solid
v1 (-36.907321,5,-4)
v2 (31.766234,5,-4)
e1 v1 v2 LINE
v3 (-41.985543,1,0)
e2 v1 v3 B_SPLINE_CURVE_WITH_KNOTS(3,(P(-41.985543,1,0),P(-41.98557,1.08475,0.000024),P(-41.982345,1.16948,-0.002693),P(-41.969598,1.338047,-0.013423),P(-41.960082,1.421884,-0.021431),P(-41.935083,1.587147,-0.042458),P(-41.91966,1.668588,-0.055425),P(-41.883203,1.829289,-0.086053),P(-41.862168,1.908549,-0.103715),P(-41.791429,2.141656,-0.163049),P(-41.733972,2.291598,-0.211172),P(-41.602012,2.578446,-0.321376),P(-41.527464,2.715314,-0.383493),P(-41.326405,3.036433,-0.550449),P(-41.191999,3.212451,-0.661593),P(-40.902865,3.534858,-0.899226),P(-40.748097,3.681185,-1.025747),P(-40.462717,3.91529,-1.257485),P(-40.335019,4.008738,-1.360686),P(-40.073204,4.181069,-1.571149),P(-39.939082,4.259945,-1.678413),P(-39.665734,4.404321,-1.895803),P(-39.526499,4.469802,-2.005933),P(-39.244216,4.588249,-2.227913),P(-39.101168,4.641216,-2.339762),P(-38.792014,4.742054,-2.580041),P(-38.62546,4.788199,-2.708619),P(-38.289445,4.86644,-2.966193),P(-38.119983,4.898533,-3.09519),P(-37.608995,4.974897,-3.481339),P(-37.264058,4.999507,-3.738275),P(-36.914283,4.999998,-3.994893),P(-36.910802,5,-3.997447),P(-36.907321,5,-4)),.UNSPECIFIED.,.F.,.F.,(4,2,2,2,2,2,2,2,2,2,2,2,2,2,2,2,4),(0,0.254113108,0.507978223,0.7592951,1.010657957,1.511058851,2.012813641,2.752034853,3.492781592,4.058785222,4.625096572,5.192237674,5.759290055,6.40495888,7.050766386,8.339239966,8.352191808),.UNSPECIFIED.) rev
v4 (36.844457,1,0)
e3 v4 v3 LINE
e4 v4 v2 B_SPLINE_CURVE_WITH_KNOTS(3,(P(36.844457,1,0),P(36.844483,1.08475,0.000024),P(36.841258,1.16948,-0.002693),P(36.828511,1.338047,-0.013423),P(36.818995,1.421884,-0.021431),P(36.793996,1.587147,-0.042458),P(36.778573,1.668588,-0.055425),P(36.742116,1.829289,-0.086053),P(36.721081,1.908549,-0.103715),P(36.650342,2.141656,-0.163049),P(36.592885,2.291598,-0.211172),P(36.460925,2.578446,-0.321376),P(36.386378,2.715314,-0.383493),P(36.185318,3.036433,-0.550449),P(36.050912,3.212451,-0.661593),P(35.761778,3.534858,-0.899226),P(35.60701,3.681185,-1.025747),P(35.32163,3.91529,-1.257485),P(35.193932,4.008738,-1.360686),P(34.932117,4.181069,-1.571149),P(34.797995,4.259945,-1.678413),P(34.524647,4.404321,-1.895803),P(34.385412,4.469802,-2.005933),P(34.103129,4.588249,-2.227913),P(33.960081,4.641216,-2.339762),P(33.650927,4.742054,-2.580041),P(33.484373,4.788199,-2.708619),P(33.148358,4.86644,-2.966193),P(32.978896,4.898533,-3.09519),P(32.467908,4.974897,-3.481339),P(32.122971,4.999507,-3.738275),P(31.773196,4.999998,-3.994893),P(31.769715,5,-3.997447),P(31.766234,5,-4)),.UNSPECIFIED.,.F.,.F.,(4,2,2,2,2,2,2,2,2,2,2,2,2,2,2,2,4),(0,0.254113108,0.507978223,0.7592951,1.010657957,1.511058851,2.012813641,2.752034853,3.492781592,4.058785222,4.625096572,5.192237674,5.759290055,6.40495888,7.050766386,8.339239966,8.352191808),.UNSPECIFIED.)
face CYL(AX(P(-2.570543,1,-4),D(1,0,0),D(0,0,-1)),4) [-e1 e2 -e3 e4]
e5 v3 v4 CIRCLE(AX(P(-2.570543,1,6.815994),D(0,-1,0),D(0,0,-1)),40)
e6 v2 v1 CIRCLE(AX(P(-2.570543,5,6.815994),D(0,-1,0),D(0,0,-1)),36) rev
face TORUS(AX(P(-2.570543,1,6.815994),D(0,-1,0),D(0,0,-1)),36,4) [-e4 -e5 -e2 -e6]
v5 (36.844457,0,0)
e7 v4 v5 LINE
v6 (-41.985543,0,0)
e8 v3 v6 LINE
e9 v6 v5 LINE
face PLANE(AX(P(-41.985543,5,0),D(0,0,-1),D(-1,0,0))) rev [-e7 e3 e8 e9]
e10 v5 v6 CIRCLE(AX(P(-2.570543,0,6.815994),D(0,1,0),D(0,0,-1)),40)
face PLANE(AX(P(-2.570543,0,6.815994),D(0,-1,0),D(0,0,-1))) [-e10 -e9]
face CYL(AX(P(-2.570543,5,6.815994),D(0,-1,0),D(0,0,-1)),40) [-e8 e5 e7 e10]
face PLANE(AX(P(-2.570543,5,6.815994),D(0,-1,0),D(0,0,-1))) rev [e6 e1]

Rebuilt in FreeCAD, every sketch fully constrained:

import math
import FreeCAD as App
import Part
import Sketcher

V = App.Vector
Q = App.Units.Quantity


def edges_at(feature, points):
    """Names of the edges that pass closest to the given points."""
    edges = feature.Shape.Edges
    near = lambda p: min(range(len(edges)), key=lambda i: edges[i].distToShape(Part.Vertex(*p))[0])
    return sorted({f"Edge{near(p) + 1}" for p in points})

doc = App.newDocument("Part")
body = doc.addObject("PartDesign::Body", "Body")

sketch1 = body.newObject("Sketcher::SketchObject", "Sketch")
sketch1.AttachmentSupport = (doc.getObject("XZ_Plane"), [""])
sketch1.MapMode = "FlatFace"
sketch1.addGeometry([
    Part.LineSegment(V(-41.985543, 0, 0), V(36.844457, 0, 0)),
    Part.ArcOfCircle(Part.Circle(V(-2.570543, 6.815994, 0), V(0, 0, 1), 40), math.radians(-170.188932), math.radians(-9.811068)),
], False)
sketch1.addConstraint([
    Sketcher.Constraint("Coincident", 0, 1, 1, 1),
    Sketcher.Constraint("Coincident", 1, 2, 0, 2),
    Sketcher.Constraint("Horizontal", 0),
    Sketcher.Constraint("PointOnObject", 0, 1, -1),
    Sketcher.Constraint("Radius", 1, Q("40 mm")),
    Sketcher.Constraint("DistanceX", 0, 1, 0, 2, Q("78.83 mm")),
    Sketcher.Constraint("DistanceX", 1, 3, -1, 1, Q("2.570543 mm")),
])
pad1 = body.newObject("PartDesign::Pad", "Pad")
pad1.Profile = sketch1
pad1.Length = 5
pad1.Reversed = True
doc.recompute()

fillet = body.newObject("PartDesign::Fillet", "Fillet")
fillet.Base = (pad1, edges_at(pad1, [(-2.571, 5, -33.184), (-2.571, 5, 0)]))
fillet.Radius = 4

doc.recompute()
